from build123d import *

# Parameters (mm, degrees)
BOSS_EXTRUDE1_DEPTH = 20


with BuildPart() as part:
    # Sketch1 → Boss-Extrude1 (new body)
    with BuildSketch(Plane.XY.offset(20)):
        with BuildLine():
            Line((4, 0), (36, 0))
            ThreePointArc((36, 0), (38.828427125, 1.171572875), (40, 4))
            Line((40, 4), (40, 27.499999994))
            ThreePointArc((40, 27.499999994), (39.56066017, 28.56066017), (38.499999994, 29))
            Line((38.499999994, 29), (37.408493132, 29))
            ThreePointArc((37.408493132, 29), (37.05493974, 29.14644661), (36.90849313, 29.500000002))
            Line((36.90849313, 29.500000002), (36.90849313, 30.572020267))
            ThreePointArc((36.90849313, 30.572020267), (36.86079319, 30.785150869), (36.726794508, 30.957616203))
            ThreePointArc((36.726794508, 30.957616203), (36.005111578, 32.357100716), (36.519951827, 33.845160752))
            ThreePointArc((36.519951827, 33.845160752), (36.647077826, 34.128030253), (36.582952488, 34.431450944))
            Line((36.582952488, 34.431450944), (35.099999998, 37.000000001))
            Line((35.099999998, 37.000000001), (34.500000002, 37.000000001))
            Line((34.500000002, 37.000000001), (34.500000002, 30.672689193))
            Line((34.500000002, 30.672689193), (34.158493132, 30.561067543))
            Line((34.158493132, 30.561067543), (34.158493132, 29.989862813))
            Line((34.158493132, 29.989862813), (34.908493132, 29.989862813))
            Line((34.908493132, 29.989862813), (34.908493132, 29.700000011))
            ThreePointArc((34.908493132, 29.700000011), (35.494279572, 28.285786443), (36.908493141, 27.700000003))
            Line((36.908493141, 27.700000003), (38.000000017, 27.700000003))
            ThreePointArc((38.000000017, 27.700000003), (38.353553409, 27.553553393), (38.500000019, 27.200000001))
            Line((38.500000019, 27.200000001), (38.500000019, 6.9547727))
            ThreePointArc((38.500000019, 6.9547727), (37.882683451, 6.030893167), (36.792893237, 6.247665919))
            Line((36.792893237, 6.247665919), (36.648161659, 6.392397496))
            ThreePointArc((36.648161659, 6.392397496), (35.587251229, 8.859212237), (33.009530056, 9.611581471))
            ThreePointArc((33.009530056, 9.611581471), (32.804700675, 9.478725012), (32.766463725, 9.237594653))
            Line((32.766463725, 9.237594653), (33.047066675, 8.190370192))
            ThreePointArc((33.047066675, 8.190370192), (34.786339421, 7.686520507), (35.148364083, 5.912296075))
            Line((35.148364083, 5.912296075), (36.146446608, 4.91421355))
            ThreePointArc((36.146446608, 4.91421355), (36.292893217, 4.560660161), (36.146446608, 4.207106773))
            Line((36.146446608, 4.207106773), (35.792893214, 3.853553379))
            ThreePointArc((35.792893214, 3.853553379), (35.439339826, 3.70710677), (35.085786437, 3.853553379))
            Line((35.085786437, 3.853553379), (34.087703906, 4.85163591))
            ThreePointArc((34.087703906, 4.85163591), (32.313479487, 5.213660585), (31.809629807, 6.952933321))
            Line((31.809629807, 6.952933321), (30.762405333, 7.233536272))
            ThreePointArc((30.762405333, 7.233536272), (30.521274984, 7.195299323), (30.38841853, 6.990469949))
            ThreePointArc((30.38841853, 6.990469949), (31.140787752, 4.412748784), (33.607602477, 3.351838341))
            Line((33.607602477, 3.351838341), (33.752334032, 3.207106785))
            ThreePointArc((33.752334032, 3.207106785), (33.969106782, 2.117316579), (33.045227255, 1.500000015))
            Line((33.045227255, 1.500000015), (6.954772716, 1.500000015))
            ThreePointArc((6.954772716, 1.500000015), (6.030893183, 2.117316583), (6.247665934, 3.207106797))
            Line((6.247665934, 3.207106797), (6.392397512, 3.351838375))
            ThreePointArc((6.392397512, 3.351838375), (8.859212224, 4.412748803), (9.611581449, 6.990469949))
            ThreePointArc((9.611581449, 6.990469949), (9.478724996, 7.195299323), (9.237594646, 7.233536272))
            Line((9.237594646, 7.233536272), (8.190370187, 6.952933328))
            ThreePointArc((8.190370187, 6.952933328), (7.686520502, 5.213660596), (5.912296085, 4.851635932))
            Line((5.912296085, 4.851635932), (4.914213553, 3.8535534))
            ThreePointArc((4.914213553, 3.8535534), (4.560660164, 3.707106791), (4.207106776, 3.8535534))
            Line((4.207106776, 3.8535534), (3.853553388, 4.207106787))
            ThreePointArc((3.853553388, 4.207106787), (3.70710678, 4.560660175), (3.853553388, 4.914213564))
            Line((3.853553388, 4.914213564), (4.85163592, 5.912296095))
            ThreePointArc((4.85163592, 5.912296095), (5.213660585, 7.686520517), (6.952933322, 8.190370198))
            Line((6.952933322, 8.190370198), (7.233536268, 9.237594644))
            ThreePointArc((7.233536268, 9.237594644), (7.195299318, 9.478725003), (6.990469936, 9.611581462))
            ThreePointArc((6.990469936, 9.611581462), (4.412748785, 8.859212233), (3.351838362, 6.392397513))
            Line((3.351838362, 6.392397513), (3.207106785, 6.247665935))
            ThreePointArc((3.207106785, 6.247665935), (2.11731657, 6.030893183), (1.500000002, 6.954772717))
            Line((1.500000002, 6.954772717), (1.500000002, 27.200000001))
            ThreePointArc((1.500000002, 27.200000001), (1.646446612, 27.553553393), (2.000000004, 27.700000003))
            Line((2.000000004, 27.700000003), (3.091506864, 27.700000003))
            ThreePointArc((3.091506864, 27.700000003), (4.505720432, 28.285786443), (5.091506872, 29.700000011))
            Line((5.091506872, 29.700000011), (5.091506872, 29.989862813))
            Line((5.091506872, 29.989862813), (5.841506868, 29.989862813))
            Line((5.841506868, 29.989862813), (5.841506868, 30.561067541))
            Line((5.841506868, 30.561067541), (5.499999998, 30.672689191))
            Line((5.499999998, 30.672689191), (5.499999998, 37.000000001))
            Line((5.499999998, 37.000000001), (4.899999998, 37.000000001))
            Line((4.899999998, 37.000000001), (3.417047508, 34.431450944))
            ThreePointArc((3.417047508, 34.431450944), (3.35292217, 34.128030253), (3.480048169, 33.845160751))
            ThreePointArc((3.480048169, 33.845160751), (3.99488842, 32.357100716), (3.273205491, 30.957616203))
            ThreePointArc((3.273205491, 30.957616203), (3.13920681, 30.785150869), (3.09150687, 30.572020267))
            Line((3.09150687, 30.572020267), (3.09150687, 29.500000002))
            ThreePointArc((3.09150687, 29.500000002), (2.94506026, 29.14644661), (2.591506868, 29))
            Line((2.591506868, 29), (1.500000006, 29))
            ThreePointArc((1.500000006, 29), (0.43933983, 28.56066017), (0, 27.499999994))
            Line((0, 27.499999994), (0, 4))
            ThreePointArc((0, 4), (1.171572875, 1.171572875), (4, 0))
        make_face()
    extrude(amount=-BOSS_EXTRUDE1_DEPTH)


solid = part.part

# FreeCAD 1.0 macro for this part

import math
import FreeCAD as App
import Part
import Sketcher

V = App.Vector
Q = App.Units.Quantity

doc = App.newDocument("Part")
body = doc.addObject("PartDesign::Body", "Body")

# Sketch on XY plane
sketch1 = body.newObject("Sketcher::SketchObject", "Sketch")
sketch1.AttachmentSupport = (doc.getObject("XY_Plane"), [""])
sketch1.MapMode = "FlatFace"
sketch1.AttachmentOffset = App.Placement(V(0, 0, 20), App.Rotation())
sketch1.addGeometry(Part.LineSegment(V(4, 0, 0), V(36, 0, 0)), False)
sketch1.addGeometry(Part.ArcOfCircle(Part.Circle(V(36, 4, 0), V(0, 0, 1), 4), math.radians(-90), math.radians(0)), False)
sketch1.addGeometry(Part.LineSegment(V(40, 4, 0), V(40, 27.5, 0)), False)
sketch1.addGeometry(Part.ArcOfCircle(Part.Circle(V(38.5, 27.5, 0), V(0, 0, 1), 1.5), math.radians(0), math.radians(90)), False)
sketch1.addGeometry(Part.LineSegment(V(38.5, 29, 0), V(37.41, 29, 0)), False)
sketch1.addGeometry(Part.ArcOfCircle(Part.Circle(V(37.41, 29.5, 0), V(0, 0, 1), 0.5), math.radians(180), math.radians(270)), False)
sketch1.addGeometry(Part.LineSegment(V(36.91, 29.5, 0), V(36.91, 30.57, 0)), False)
sketch1.addGeometry(Part.ArcOfCircle(Part.Circle(V(36.41, 30.57, 0), V(0, 0, 1), 0.5), math.radians(0), math.radians(50)), False)
sketch1.addGeometry(Part.ArcOfCircle(Part.Circle(V(38, 32.5, 0), V(0, 0, 1), 2), math.radians(138), math.radians(230)), False)
sketch1.addGeometry(Part.ArcOfCircle(Part.Circle(V(36.15, 34.18, 0), V(0, 0, 1), 0.5), math.radians(-42), math.radians(30)), False)
sketch1.addGeometry(Part.LineSegment(V(36.58, 34.43, 0), V(35.1, 37, 0)), False)
sketch1.addGeometry(Part.LineSegment(V(35.1, 37, 0), V(34.5, 37, 0)), False)
sketch1.addGeometry(Part.LineSegment(V(34.5, 37, 0), V(34.5, 30.67, 0)), False)
sketch1.addGeometry(Part.LineSegment(V(34.5, 30.67, 0), V(34.16, 30.56, 0)), False)
sketch1.addGeometry(Part.LineSegment(V(34.16, 30.56, 0), V(34.16, 29.99, 0)), False)
sketch1.addGeometry(Part.LineSegment(V(34.16, 29.99, 0), V(34.91, 29.99, 0)), False)
sketch1.addGeometry(Part.LineSegment(V(34.91, 29.99, 0), V(34.91, 29.7, 0)), False)
sketch1.addGeometry(Part.ArcOfCircle(Part.Circle(V(36.91, 29.7, 0), V(0, 0, 1), 2), math.radians(180), math.radians(270)), False)
sketch1.addGeometry(Part.LineSegment(V(36.91, 27.7, 0), V(38, 27.7, 0)), False)
sketch1.addGeometry(Part.ArcOfCircle(Part.Circle(V(38, 27.2, 0), V(0, 0, 1), 0.5), math.radians(0), math.radians(90)), False)
sketch1.addGeometry(Part.LineSegment(V(38.5, 27.2, 0), V(38.5, 6.95, 0)), False)
sketch1.addGeometry(Part.ArcOfCircle(Part.Circle(V(37.5, 6.95, 0), V(0, 0, 1), 1), math.radians(-135), math.radians(0)), False)
sketch1.addGeometry(Part.LineSegment(V(36.79, 6.25, 0), V(36.65, 6.39, 0)), False)
sketch1.addGeometry(Part.ArcOfCircle(Part.Circle(V(33.5, 6.5, 0), V(0, 0, 1), 3.15), math.radians(-2), math.radians(99)), False)
sketch1.addGeometry(Part.ArcOfCircle(Part.Circle(V(33.06, 9.32, 0), V(0, 0, 1), 0.3), math.radians(99), math.radians(195)), False)
sketch1.addGeometry(Part.LineSegment(V(32.77, 9.24, 0), V(33.05, 8.19, 0)), False)
sketch1.addGeometry(Part.ArcOfCircle(Part.Circle(V(33.5, 6.5, 0), V(0, 0, 1), 1.75), math.radians(-20), math.radians(105)), False)
sketch1.addGeometry(Part.LineSegment(V(35.15, 5.91, 0), V(36.15, 4.91, 0)), False)
sketch1.addGeometry(Part.ArcOfCircle(Part.Circle(V(35.79, 4.56, 0), V(0, 0, 1), 0.5), math.radians(-45), math.radians(45)), False)
sketch1.addGeometry(Part.LineSegment(V(36.15, 4.21, 0), V(35.79, 3.85, 0)), False)
sketch1.addGeometry(Part.ArcOfCircle(Part.Circle(V(35.44, 4.21, 0), V(0, 0, 1), 0.5), math.radians(-135), math.radians(-45)), False)
sketch1.addGeometry(Part.LineSegment(V(35.09, 3.85, 0), V(34.09, 4.85, 0)), False)
sketch1.addGeometry(Part.ArcOfCircle(Part.Circle(V(33.5, 6.5, 0), V(0, 0, 1), 1.75), math.radians(165), math.radians(290)), False)
sketch1.addGeometry(Part.LineSegment(V(31.81, 6.95, 0), V(30.76, 7.23, 0)), False)
sketch1.addGeometry(Part.ArcOfCircle(Part.Circle(V(30.68, 6.94, 0), V(0, 0, 1), 0.3), math.radians(75), math.radians(171)), False)
sketch1.addGeometry(Part.ArcOfCircle(Part.Circle(V(33.5, 6.5, 0), V(0, 0, 1), 3.15), math.radians(171), math.radians(272)), False)
sketch1.addGeometry(Part.LineSegment(V(33.61, 3.35, 0), V(33.75, 3.21, 0)), False)
sketch1.addGeometry(Part.ArcOfCircle(Part.Circle(V(33.05, 2.5, 0), V(0, 0, 1), 1), math.radians(-90), math.radians(45)), False)
sketch1.addGeometry(Part.LineSegment(V(33.05, 1.5, 0), V(6.95, 1.5, 0)), False)
sketch1.addGeometry(Part.ArcOfCircle(Part.Circle(V(6.95, 2.5, 0), V(0, 0, 1), 1), math.radians(135), math.radians(270)), False)
sketch1.addGeometry(Part.LineSegment(V(6.25, 3.21, 0), V(6.39, 3.35, 0)), False)
sketch1.addGeometry(Part.ArcOfCircle(Part.Circle(V(6.5, 6.5, 0), V(0, 0, 1), 3.15), math.radians(-92), math.radians(9)), False)
sketch1.addGeometry(Part.ArcOfCircle(Part.Circle(V(9.32, 6.94, 0), V(0, 0, 1), 0.3), math.radians(9), math.radians(105)), False)
sketch1.addGeometry(Part.LineSegment(V(9.24, 7.23, 0), V(8.19, 6.95, 0)), False)
sketch1.addGeometry(Part.ArcOfCircle(Part.Circle(V(6.5, 6.5, 0), V(0, 0, 1), 1.75), math.radians(-110), math.radians(15)), False)
sketch1.addGeometry(Part.LineSegment(V(5.91, 4.85, 0), V(4.91, 3.85, 0)), False)
sketch1.addGeometry(Part.ArcOfCircle(Part.Circle(V(4.56, 4.21, 0), V(0, 0, 1), 0.5), math.radians(-135), math.radians(-45)), False)
sketch1.addGeometry(Part.LineSegment(V(4.21, 3.85, 0), V(3.85, 4.21, 0)), False)
sketch1.addGeometry(Part.ArcOfCircle(Part.Circle(V(4.21, 4.56, 0), V(0, 0, 1), 0.5), math.radians(135), math.radians(225)), False)
sketch1.addGeometry(Part.LineSegment(V(3.85, 4.91, 0), V(4.85, 5.91, 0)), False)
sketch1.addGeometry(Part.ArcOfCircle(Part.Circle(V(6.5, 6.5, 0), V(0, 0, 1), 1.75), math.radians(75), math.radians(200)), False)
sketch1.addGeometry(Part.LineSegment(V(6.95, 8.19, 0), V(7.23, 9.24, 0)), False)
sketch1.addGeometry(Part.ArcOfCircle(Part.Circle(V(6.94, 9.32, 0), V(0, 0, 1), 0.3), math.radians(-15), math.radians(81)), False)
sketch1.addGeometry(Part.ArcOfCircle(Part.Circle(V(6.5, 6.5, 0), V(0, 0, 1), 3.15), math.radians(81), math.radians(182)), False)
sketch1.addGeometry(Part.LineSegment(V(3.35, 6.39, 0), V(3.21, 6.25, 0)), False)
sketch1.addGeometry(Part.ArcOfCircle(Part.Circle(V(2.5, 6.95, 0), V(0, 0, 1), 1), math.radians(180), math.radians(315)), False)
sketch1.addGeometry(Part.LineSegment(V(1.5, 6.95, 0), V(1.5, 27.2, 0)), False)
sketch1.addGeometry(Part.ArcOfCircle(Part.Circle(V(2, 27.2, 0), V(0, 0, 1), 0.5), math.radians(90), math.radians(180)), False)
sketch1.addGeometry(Part.LineSegment(V(2, 27.7, 0), V(3.09, 27.7, 0)), False)
sketch1.addGeometry(Part.ArcOfCircle(Part.Circle(V(3.09, 29.7, 0), V(0, 0, 1), 2), math.radians(-90), math.radians(0)), False)
sketch1.addGeometry(Part.LineSegment(V(5.09, 29.7, 0), V(5.09, 29.99, 0)), False)
sketch1.addGeometry(Part.LineSegment(V(5.09, 29.99, 0), V(5.84, 29.99, 0)), False)
sketch1.addGeometry(Part.LineSegment(V(5.84, 29.99, 0), V(5.84, 30.56, 0)), False)
sketch1.addGeometry(Part.LineSegment(V(5.84, 30.56, 0), V(5.5, 30.67, 0)), False)
sketch1.addGeometry(Part.LineSegment(V(5.5, 30.67, 0), V(5.5, 37, 0)), False)
sketch1.addGeometry(Part.LineSegment(V(5.5, 37, 0), V(4.9, 37, 0)), False)
sketch1.addGeometry(Part.LineSegment(V(4.9, 37, 0), V(3.42, 34.43, 0)), False)
sketch1.addGeometry(Part.ArcOfCircle(Part.Circle(V(3.85, 34.18, 0), V(0, 0, 1), 0.5), math.radians(150), math.radians(222)), False)
sketch1.addGeometry(Part.ArcOfCircle(Part.Circle(V(2, 32.5, 0), V(0, 0, 1), 2), math.radians(-50), math.radians(42)), False)
sketch1.addGeometry(Part.ArcOfCircle(Part.Circle(V(3.59, 30.57, 0), V(0, 0, 1), 0.5), math.radians(130), math.radians(180)), False)
sketch1.addGeometry(Part.LineSegment(V(3.09, 30.57, 0), V(3.09, 29.5, 0)), False)
sketch1.addGeometry(Part.ArcOfCircle(Part.Circle(V(2.59, 29.5, 0), V(0, 0, 1), 0.5), math.radians(-90), math.radians(0)), False)
sketch1.addGeometry(Part.LineSegment(V(2.59, 29, 0), V(1.5, 29, 0)), False)
sketch1.addGeometry(Part.ArcOfCircle(Part.Circle(V(1.5, 27.5, 0), V(0, 0, 1), 1.5), math.radians(90), math.radians(180)), False)
sketch1.addGeometry(Part.LineSegment(V(0, 27.5, 0), V(0, 4, 0)), False)
sketch1.addGeometry(Part.ArcOfCircle(Part.Circle(V(4, 4, 0), V(0, 0, 1), 4), math.radians(180), math.radians(270)), False)
sketch1.addConstraint(Sketcher.Constraint("Tangent", 0, 2, 1, 1))
sketch1.addConstraint(Sketcher.Constraint("Tangent", 1, 2, 2, 1))
sketch1.addConstraint(Sketcher.Constraint("Tangent", 2, 2, 3, 1))
sketch1.addConstraint(Sketcher.Constraint("Tangent", 3, 2, 4, 1))
sketch1.addConstraint(Sketcher.Constraint("Tangent", 4, 2, 5, 2))
sketch1.addConstraint(Sketcher.Constraint("Tangent", 5, 1, 6, 1))
sketch1.addConstraint(Sketcher.Constraint("Tangent", 6, 2, 7, 1))
sketch1.addConstraint(Sketcher.Constraint("Tangent", 7, 2, 8, 2))
sketch1.addConstraint(Sketcher.Constraint("Tangent", 8, 1, 9, 1))
sketch1.addConstraint(Sketcher.Constraint("Tangent", 9, 2, 10, 1))
sketch1.addConstraint(Sketcher.Constraint("Coincident", 10, 2, 11, 1))
sketch1.addConstraint(Sketcher.Constraint("Coincident", 11, 2, 12, 1))
sketch1.addConstraint(Sketcher.Constraint("Coincident", 12, 2, 13, 1))
sketch1.addConstraint(Sketcher.Constraint("Coincident", 13, 2, 14, 1))
sketch1.addConstraint(Sketcher.Constraint("Coincident", 14, 2, 15, 1))
sketch1.addConstraint(Sketcher.Constraint("Coincident", 15, 2, 16, 1))
sketch1.addConstraint(Sketcher.Constraint("Tangent", 16, 2, 17, 1))
sketch1.addConstraint(Sketcher.Constraint("Tangent", 17, 2, 18, 1))
sketch1.addConstraint(Sketcher.Constraint("Tangent", 18, 2, 19, 2))
sketch1.addConstraint(Sketcher.Constraint("Tangent", 19, 1, 20, 1))
sketch1.addConstraint(Sketcher.Constraint("Tangent", 20, 2, 21, 2))
sketch1.addConstraint(Sketcher.Constraint("Tangent", 21, 1, 22, 1))
sketch1.addConstraint(Sketcher.Constraint("Coincident", 22, 2, 23, 1))
sketch1.addConstraint(Sketcher.Constraint("Tangent", 23, 2, 24, 1))
sketch1.addConstraint(Sketcher.Constraint("Tangent", 24, 2, 25, 1))
sketch1.addConstraint(Sketcher.Constraint("Coincident", 25, 2, 26, 2))
sketch1.addConstraint(Sketcher.Constraint("Coincident", 26, 1, 27, 1))
sketch1.addConstraint(Sketcher.Constraint("Tangent", 27, 2, 28, 2))
sketch1.addConstraint(Sketcher.Constraint("Tangent", 28, 1, 29, 1))
sketch1.addConstraint(Sketcher.Constraint("Tangent", 29, 2, 30, 2))
sketch1.addConstraint(Sketcher.Constraint("Tangent", 30, 1, 31, 1))
sketch1.addConstraint(Sketcher.Constraint("Coincident", 31, 2, 32, 2))
sketch1.addConstraint(Sketcher.Constraint("Coincident", 32, 1, 33, 1))
sketch1.addConstraint(Sketcher.Constraint("Tangent", 33, 2, 34, 1))
sketch1.addConstraint(Sketcher.Constraint("Tangent", 34, 2, 35, 1))
sketch1.addConstraint(Sketcher.Constraint("Coincident", 35, 2, 36, 1))
sketch1.addConstraint(Sketcher.Constraint("Tangent", 36, 2, 37, 2))
sketch1.addConstraint(Sketcher.Constraint("Tangent", 37, 1, 38, 1))
sketch1.addConstraint(Sketcher.Constraint("Tangent", 38, 2, 39, 2))
sketch1.addConstraint(Sketcher.Constraint("Tangent", 39, 1, 40, 1))
sketch1.addConstraint(Sketcher.Constraint("Coincident", 40, 2, 41, 1))
sketch1.addConstraint(Sketcher.Constraint("Tangent", 41, 2, 42, 1))
sketch1.addConstraint(Sketcher.Constraint("Tangent", 42, 2, 43, 1))
sketch1.addConstraint(Sketcher.Constraint("Coincident", 43, 2, 44, 2))
sketch1.addConstraint(Sketcher.Constraint("Coincident", 44, 1, 45, 1))
sketch1.addConstraint(Sketcher.Constraint("Tangent", 45, 2, 46, 2))
sketch1.addConstraint(Sketcher.Constraint("Tangent", 46, 1, 47, 1))
sketch1.addConstraint(Sketcher.Constraint("Tangent", 47, 2, 48, 2))
sketch1.addConstraint(Sketcher.Constraint("Tangent", 48, 1, 49, 1))
sketch1.addConstraint(Sketcher.Constraint("Coincident", 49, 2, 50, 2))
sketch1.addConstraint(Sketcher.Constraint("Coincident", 50, 1, 51, 1))
sketch1.addConstraint(Sketcher.Constraint("Tangent", 51, 2, 52, 1))
sketch1.addConstraint(Sketcher.Constraint("Tangent", 52, 2, 53, 1))
sketch1.addConstraint(Sketcher.Constraint("Coincident", 53, 2, 54, 1))
sketch1.addConstraint(Sketcher.Constraint("Tangent", 54, 2, 55, 2))
sketch1.addConstraint(Sketcher.Constraint("Tangent", 55, 1, 56, 1))
sketch1.addConstraint(Sketcher.Constraint("Tangent", 56, 2, 57, 2))
sketch1.addConstraint(Sketcher.Constraint("Tangent", 57, 1, 58, 1))
sketch1.addConstraint(Sketcher.Constraint("Tangent", 58, 2, 59, 1))
sketch1.addConstraint(Sketcher.Constraint("Tangent", 59, 2, 60, 1))
sketch1.addConstraint(Sketcher.Constraint("Coincident", 60, 2, 61, 1))
sketch1.addConstraint(Sketcher.Constraint("Coincident", 61, 2, 62, 1))
sketch1.addConstraint(Sketcher.Constraint("Coincident", 62, 2, 63, 1))
sketch1.addConstraint(Sketcher.Constraint("Coincident", 63, 2, 64, 1))
sketch1.addConstraint(Sketcher.Constraint("Coincident", 64, 2, 65, 1))
sketch1.addConstraint(Sketcher.Constraint("Coincident", 65, 2, 66, 1))
sketch1.addConstraint(Sketcher.Constraint("Tangent", 66, 2, 67, 1))
sketch1.addConstraint(Sketcher.Constraint("Tangent", 67, 2, 68, 2))
sketch1.addConstraint(Sketcher.Constraint("Tangent", 68, 1, 69, 1))
sketch1.addConstraint(Sketcher.Constraint("Tangent", 69, 2, 70, 1))
sketch1.addConstraint(Sketcher.Constraint("Tangent", 70, 2, 71, 2))
sketch1.addConstraint(Sketcher.Constraint("Tangent", 71, 1, 72, 1))
sketch1.addConstraint(Sketcher.Constraint("Tangent", 72, 2, 73, 1))
sketch1.addConstraint(Sketcher.Constraint("Tangent", 73, 2, 74, 1))
sketch1.addConstraint(Sketcher.Constraint("Tangent", 74, 2, 75, 1))
sketch1.addConstraint(Sketcher.Constraint("Tangent", 75, 2, 0, 1))
sketch1.addConstraint(Sketcher.Constraint("Horizontal", 0))
sketch1.addConstraint(Sketcher.Constraint("Vertical", 2))
sketch1.addConstraint(Sketcher.Constraint("Horizontal", 4))
sketch1.addConstraint(Sketcher.Constraint("Vertical", 6))
sketch1.addConstraint(Sketcher.Constraint("Horizontal", 11))
sketch1.addConstraint(Sketcher.Constraint("Vertical", 12))
sketch1.addConstraint(Sketcher.Constraint("Vertical", 14))
sketch1.addConstraint(Sketcher.Constraint("Horizontal", 15))
sketch1.addConstraint(Sketcher.Constraint("Vertical", 16))
sketch1.addConstraint(Sketcher.Constraint("Horizontal", 18))
sketch1.addConstraint(Sketcher.Constraint("Vertical", 20))
sketch1.addConstraint(Sketcher.Constraint("Horizontal", 38))
sketch1.addConstraint(Sketcher.Constraint("Vertical", 56))
sketch1.addConstraint(Sketcher.Constraint("Horizontal", 58))
sketch1.addConstraint(Sketcher.Constraint("Vertical", 60))
sketch1.addConstraint(Sketcher.Constraint("Horizontal", 61))
sketch1.addConstraint(Sketcher.Constraint("Vertical", 62))
sketch1.addConstraint(Sketcher.Constraint("Vertical", 64))
sketch1.addConstraint(Sketcher.Constraint("Horizontal", 65))
sketch1.addConstraint(Sketcher.Constraint("Vertical", 70))
sketch1.addConstraint(Sketcher.Constraint("Horizontal", 72))
sketch1.addConstraint(Sketcher.Constraint("Vertical", 74))
sketch1.addConstraint(Sketcher.Constraint("Coincident", 26, 3, 23, 3))
sketch1.addConstraint(Sketcher.Constraint("Coincident", 32, 3, 23, 3))
sketch1.addConstraint(Sketcher.Constraint("Coincident", 35, 3, 23, 3))
sketch1.addConstraint(Sketcher.Constraint("Coincident", 44, 3, 41, 3))
sketch1.addConstraint(Sketcher.Constraint("Coincident", 50, 3, 41, 3))
sketch1.addConstraint(Sketcher.Constraint("Coincident", 53, 3, 41, 3))
sketch1.addConstraint(Sketcher.Constraint("Equal", 5, 7))
sketch1.addConstraint(Sketcher.Constraint("Equal", 7, 9))
sketch1.addConstraint(Sketcher.Constraint("Equal", 8, 17))
sketch1.addConstraint(Sketcher.Constraint("Equal", 9, 19))
sketch1.addConstraint(Sketcher.Constraint("Equal", 19, 28))
sketch1.addConstraint(Sketcher.Constraint("Equal", 28, 30))
sketch1.addConstraint(Sketcher.Constraint("Equal", 26, 32))
sketch1.addConstraint(Sketcher.Constraint("Equal", 24, 34))
sketch1.addConstraint(Sketcher.Constraint("Equal", 23, 35))
sketch1.addConstraint(Sketcher.Constraint("Equal", 21, 37))
sketch1.addConstraint(Sketcher.Constraint("Equal", 37, 39))
sketch1.addConstraint(Sketcher.Constraint("Equal", 35, 41))
sketch1.addConstraint(Sketcher.Constraint("Equal", 34, 42))
sketch1.addConstraint(Sketcher.Constraint("Equal", 32, 44))
sketch1.addConstraint(Sketcher.Constraint("Equal", 30, 46))
sketch1.addConstraint(Sketcher.Constraint("Equal", 46, 48))
sketch1.addConstraint(Sketcher.Constraint("Equal", 44, 50))
sketch1.addConstraint(Sketcher.Constraint("Equal", 42, 52))
sketch1.addConstraint(Sketcher.Constraint("Equal", 41, 53))
sketch1.addConstraint(Sketcher.Constraint("Equal", 39, 55))
sketch1.addConstraint(Sketcher.Constraint("Equal", 48, 57))
sketch1.addConstraint(Sketcher.Constraint("Equal", 17, 59))
sketch1.addConstraint(Sketcher.Constraint("Equal", 57, 67))
sketch1.addConstraint(Sketcher.Constraint("Equal", 59, 68))
sketch1.addConstraint(Sketcher.Constraint("Equal", 67, 69))
sketch1.addConstraint(Sketcher.Constraint("Equal", 69, 71))
sketch1.addConstraint(Sketcher.Constraint("Equal", 3, 73))
sketch1.addConstraint(Sketcher.Constraint("Equal", 1, 75))
sketch1.addConstraint(Sketcher.Constraint("PointOnObject", 0, 2, -1))
sketch1.addConstraint(Sketcher.Constraint("PointOnObject", 73, 2, -2))
sketch1.addConstraint(Sketcher.Constraint("Parallel", 22, 27))
sketch1.addConstraint(Sketcher.Constraint("Perpendicular", 27, 29))
sketch1.addConstraint(Sketcher.Constraint("Perpendicular", 29, 31))
sketch1.addConstraint(Sketcher.Constraint("Parallel", 31, 36))
sketch1.addConstraint(Sketcher.Constraint("Perpendicular", 36, 40))
sketch1.addConstraint(Sketcher.Constraint("Perpendicular", 25, 43))
sketch1.addConstraint(Sketcher.Constraint("Parallel", 40, 45))
sketch1.addConstraint(Sketcher.Constraint("Perpendicular", 45, 47))
sketch1.addConstraint(Sketcher.Constraint("Perpendicular", 47, 49))
sketch1.addConstraint(Sketcher.Constraint("Perpendicular", 33, 51))
sketch1.addConstraint(Sketcher.Constraint("Parallel", 49, 54))
sketch1.addConstraint(Sketcher.Constraint("Horizontal", 35, 3, 41, 3))
sketch1.addConstraint(Sketcher.Constraint("Horizontal", 34, 3, 42, 3))
sketch1.addConstraint(Sketcher.Constraint("Horizontal", 30, 3, 46, 3))
sketch1.addConstraint(Sketcher.Constraint("Horizontal", 28, 3, 48, 3))
sketch1.addConstraint(Sketcher.Constraint("Horizontal", 24, 3, 52, 3))
sketch1.addConstraint(Sketcher.Constraint("Horizontal", 21, 3, 55, 3))
sketch1.addConstraint(Sketcher.Constraint("Horizontal", 19, 3, 57, 3))
sketch1.addConstraint(Sketcher.Constraint("Horizontal", 9, 3, 67, 3))
sketch1.addConstraint(Sketcher.Constraint("Horizontal", 8, 3, 68, 3))
sketch1.addConstraint(Sketcher.Constraint("Horizontal", 7, 3, 69, 3))
sketch1.addConstraint(Sketcher.Constraint("Horizontal", 5, 3, 71, 3))
sketch1.addConstraint(Sketcher.Constraint("Horizontal", 46, 3, 28, 1))
sketch1.addConstraint(Sketcher.Constraint("Horizontal", 29, 2, 30, 1))
sketch1.addConstraint(Sketcher.Constraint("Horizontal", 35, 2, 40, 2))
sketch1.addConstraint(Sketcher.Constraint("Horizontal", 33, 2, 42, 2))
sketch1.addConstraint(Sketcher.Constraint("Horizontal", 31, 2, 44, 1))
sketch1.addConstraint(Sketcher.Constraint("Horizontal", 22, 2, 53, 2))
sketch1.addConstraint(Sketcher.Constraint("Horizontal", 15, 2, 60, 2))
sketch1.addConstraint(Sketcher.Constraint("Horizontal", 13, 2, 62, 2))
sketch1.addConstraint(Sketcher.Constraint("Horizontal", 12, 2, 63, 2))
sketch1.addConstraint(Sketcher.Constraint("Horizontal", 11, 2, 64, 2))
sketch1.addConstraint(Sketcher.Constraint("Horizontal", 9, 2, 66, 2))
sketch1.addConstraint(Sketcher.Constraint("Vertical", 8, 3, 19, 3))
sketch1.addConstraint(Sketcher.Constraint("Vertical", 57, 3, 68, 3))
sketch1.addConstraint(Sketcher.Constraint("Vertical", 17, 3, 5, 1))
sketch1.addConstraint(Sketcher.Constraint("Vertical", 3, 2, 19, 1))
sketch1.addConstraint(Sketcher.Constraint("Vertical", 73, 3, 55, 1))
sketch1.addConstraint(Sketcher.Constraint("Vertical", 58, 2, 69, 2))
sketch1.addConstraint(Sketcher.Constraint("Equal", 15, 61))
sketch1.addConstraint(Sketcher.Constraint("Equal", 11, 65))
sketch1.addConstraint(Sketcher.Constraint("Equal", 27, 31))
sketch1.addConstraint(Sketcher.Constraint("Equal", 25, 33))
sketch1.addConstraint(Sketcher.Constraint("Equal", 22, 36))
sketch1.addConstraint(Sketcher.Constraint("Radius", 1, 4.0))
sketch1.addConstraint(Sketcher.Constraint("Radius", 8, 2.0))
sketch1.addConstraint(Sketcher.Constraint("Radius", 21, 1.0))
sketch1.addConstraint(Sketcher.Constraint("Radius", 3, 1.5))
sketch1.addConstraint(Sketcher.Constraint("Radius", 5, 0.5))
sketch1.addConstraint(Sketcher.Constraint("Radius", 24, 0.3))
sketch1.addConstraint(Sketcher.Constraint("DistanceX", 0, 1, 0, 2, 32.0))
sketch1.addConstraint(Sketcher.Constraint("Angle", 10, Q("120 deg")))
sketch1.addConstraint(Sketcher.Constraint("Angle", 25, Q("-75 deg")))
sketch1.addConstraint(Sketcher.Constraint("Radius", 23, 3.15))
sketch1.addConstraint(Sketcher.Constraint("Radius", 26, 1.75))
sketch1.addConstraint(Sketcher.Constraint("DistanceX", 11, 2, 11, 1, 0.6))
sketch1.addConstraint(Sketcher.Constraint("DistanceY", 2, 1, 2, 2, 23.5))
sketch1.addConstraint(Sketcher.Constraint("DistanceY", -1, 1, 10, 2, 37.0))
sketch1.addConstraint(Sketcher.Constraint("Angle", 13, Q("-161.9 deg")))
sketch1.addConstraint(Sketcher.Constraint("DistanceX", 15, 1, 15, 2, 0.75))
sketch1.addConstraint(Sketcher.Constraint("DistanceY", -1, 1, 8, 3, 32.5))
sketch1.addConstraint(Sketcher.Constraint("DistanceY", -1, 1, 17, 3, 29.7))
sketch1.addConstraint(Sketcher.Constraint("DistanceX", -1, 1, 23, 3, 33.5))
sketch1.addConstraint(Sketcher.Constraint("DistanceY", -1, 1, 23, 3, 6.5))
sketch1.addConstraint(Sketcher.Constraint("DistanceY", -1, 1, 37, 3, 2.5))
sketch1.addConstraint(Sketcher.Constraint("DistanceX", -1, 1, 10, 2, 35.1))
sketch1.addConstraint(Sketcher.Constraint("Distance", 27, 1.411502))
sketch1.addConstraint(Sketcher.Constraint("DistanceY", 6, 1, 6, 2, 1.07202))
sketch1.addConstraint(Sketcher.Constraint("DistanceY", 12, 2, 12, 1, 6.327311))
sketch1.addConstraint(Sketcher.Constraint("Distance", 22, 0.204681))
sketch1.addConstraint(Sketcher.Constraint("DistanceY", 14, 2, 14, 1, 0.571205))
sketch1.addConstraint(Sketcher.Constraint("DistanceX", -1, 1, 24, 3, 33.056241))
pad1 = body.newObject("PartDesign::Pad", "Pad")
pad1.Profile = sketch1
pad1.Length = 20
pad1.Reversed = True

doc.recompute()
